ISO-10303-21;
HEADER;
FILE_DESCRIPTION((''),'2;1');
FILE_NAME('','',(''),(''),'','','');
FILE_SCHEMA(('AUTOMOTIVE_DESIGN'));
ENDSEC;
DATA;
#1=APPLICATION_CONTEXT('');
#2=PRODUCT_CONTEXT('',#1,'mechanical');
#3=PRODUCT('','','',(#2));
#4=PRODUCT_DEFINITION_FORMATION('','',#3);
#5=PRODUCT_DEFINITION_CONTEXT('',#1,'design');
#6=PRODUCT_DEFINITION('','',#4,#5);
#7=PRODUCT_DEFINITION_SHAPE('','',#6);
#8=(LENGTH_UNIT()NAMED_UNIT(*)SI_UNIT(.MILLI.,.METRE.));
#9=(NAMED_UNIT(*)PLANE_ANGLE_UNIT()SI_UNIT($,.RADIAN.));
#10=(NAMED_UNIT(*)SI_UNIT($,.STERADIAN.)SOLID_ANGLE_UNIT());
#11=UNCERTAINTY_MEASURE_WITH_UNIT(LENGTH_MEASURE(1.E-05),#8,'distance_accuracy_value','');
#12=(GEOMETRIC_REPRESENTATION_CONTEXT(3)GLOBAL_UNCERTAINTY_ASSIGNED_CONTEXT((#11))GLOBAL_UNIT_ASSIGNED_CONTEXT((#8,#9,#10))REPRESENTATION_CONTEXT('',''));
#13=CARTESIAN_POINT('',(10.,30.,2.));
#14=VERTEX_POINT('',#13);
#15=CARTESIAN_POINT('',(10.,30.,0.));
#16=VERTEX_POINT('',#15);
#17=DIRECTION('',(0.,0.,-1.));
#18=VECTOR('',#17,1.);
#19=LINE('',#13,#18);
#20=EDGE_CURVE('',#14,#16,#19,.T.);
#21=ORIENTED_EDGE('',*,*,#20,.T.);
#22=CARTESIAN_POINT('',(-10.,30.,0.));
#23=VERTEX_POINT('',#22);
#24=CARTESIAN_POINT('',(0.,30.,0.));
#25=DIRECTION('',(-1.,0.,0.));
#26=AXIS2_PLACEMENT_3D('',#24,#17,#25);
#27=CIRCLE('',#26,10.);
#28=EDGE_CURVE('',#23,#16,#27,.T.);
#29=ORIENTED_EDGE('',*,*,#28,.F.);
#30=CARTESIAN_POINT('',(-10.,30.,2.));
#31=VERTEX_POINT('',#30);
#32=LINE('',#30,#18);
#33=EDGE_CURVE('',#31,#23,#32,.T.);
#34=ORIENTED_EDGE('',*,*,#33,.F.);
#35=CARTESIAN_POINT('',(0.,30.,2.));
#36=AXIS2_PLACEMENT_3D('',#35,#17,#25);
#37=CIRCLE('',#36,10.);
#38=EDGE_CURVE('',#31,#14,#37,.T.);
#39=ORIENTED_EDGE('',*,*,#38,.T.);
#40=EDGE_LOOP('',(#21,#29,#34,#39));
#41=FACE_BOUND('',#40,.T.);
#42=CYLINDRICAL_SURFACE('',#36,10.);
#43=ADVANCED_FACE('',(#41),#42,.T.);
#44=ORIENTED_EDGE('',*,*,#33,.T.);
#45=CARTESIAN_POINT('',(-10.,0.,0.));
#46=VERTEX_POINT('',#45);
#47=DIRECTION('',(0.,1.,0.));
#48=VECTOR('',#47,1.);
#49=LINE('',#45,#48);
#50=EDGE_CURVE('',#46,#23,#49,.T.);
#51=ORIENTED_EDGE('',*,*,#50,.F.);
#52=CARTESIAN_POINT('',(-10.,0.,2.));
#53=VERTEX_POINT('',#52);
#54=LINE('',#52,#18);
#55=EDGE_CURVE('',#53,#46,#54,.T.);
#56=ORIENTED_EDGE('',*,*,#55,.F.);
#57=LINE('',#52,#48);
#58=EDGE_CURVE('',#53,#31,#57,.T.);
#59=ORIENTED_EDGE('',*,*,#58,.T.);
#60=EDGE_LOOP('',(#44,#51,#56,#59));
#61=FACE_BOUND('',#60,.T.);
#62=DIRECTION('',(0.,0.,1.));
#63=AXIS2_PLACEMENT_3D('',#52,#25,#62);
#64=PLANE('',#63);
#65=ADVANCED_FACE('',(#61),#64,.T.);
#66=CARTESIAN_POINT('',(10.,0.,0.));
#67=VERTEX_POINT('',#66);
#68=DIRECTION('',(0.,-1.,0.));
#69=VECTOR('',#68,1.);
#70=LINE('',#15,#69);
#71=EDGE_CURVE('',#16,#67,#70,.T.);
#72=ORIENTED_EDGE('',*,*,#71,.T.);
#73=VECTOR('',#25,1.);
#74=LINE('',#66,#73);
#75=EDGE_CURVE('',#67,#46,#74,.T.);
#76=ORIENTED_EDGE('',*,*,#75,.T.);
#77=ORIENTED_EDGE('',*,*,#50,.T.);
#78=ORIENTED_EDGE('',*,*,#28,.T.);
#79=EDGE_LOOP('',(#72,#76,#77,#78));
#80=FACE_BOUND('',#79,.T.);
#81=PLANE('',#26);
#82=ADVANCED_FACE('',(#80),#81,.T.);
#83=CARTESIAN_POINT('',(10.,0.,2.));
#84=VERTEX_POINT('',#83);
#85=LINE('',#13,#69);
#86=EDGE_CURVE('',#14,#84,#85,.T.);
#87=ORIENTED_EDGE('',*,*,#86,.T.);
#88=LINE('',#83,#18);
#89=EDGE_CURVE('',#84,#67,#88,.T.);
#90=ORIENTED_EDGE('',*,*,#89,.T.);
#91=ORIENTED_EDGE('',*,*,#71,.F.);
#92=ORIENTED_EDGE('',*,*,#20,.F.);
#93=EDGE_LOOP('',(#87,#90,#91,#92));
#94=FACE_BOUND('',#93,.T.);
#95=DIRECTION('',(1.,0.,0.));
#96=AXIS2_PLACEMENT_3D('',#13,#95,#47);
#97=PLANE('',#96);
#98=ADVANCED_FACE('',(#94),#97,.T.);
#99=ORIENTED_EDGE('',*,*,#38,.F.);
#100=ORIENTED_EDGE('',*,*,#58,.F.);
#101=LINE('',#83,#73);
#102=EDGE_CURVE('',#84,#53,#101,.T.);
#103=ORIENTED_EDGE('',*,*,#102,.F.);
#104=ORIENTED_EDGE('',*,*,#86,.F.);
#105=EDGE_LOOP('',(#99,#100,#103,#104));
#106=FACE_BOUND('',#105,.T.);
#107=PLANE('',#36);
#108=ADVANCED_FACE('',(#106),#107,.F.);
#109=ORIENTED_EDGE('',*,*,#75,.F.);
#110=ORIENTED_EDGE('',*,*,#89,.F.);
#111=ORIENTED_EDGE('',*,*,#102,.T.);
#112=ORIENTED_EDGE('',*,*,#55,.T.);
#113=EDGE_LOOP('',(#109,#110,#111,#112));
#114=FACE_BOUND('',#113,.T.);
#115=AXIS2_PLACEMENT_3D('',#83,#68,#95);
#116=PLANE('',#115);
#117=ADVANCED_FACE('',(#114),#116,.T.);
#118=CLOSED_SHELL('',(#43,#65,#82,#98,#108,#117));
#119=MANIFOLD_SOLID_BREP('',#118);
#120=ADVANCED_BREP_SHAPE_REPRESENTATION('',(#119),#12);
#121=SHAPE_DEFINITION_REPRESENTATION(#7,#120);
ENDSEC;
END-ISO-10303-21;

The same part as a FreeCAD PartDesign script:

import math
import FreeCAD as App
import Part
import Sketcher
from FreeCAD import Vector
Q = App.Units.Quantity

doc = App.newDocument("Part")
body = doc.addObject("PartDesign::Body", "Body")

sketch1 = body.newObject("Sketcher::SketchObject", "Sketch")
sketch1.AttachmentSupport = (doc.getObject("XY_Plane"), [""])
sketch1.MapMode = "FlatFace"
sketch1.addGeometry(Part.LineSegment(Vector(-10, 30, 0), Vector(-10, 0, 0)), False)
sketch1.addGeometry(Part.LineSegment(Vector(-10, 0, 0), Vector(10, 0, 0)), False)
sketch1.addGeometry(Part.LineSegment(Vector(10, 0, 0), Vector(10, 30, 0)), False)
sketch1.addGeometry(Part.ArcOfCircle(Part.Circle(Vector(0, 30, 0), Vector(0, 0, 1), 10), math.radians(0), math.radians(180)), False)
sketch1.addConstraint(Sketcher.Constraint("Coincident", 0, 2, 1, 1))
sketch1.addConstraint(Sketcher.Constraint("Coincident", 1, 2, 2, 1))
sketch1.addConstraint(Sketcher.Constraint("Tangent", 2, 2, 3, 1))
sketch1.addConstraint(Sketcher.Constraint("Tangent", 3, 2, 0, 1))
sketch1.addConstraint(Sketcher.Constraint("Vertical", 0))
sketch1.addConstraint(Sketcher.Constraint("Horizontal", 1))
sketch1.addConstraint(Sketcher.Constraint("Vertical", 2))
sketch1.addConstraint(Sketcher.Constraint("Symmetric", 0, 2, 1, 2, -1, 1))
sketch1.addConstraint(Sketcher.Constraint("Radius", 3, Q("10 mm")))
sketch1.addConstraint(Sketcher.Constraint("DistanceY", 0, 2, 0, 1, Q("30 mm")))
pad1 = body.newObject("PartDesign::Pad", "Pad")
pad1.Profile = sketch1
pad1.Length = 2

doc.recompute()
